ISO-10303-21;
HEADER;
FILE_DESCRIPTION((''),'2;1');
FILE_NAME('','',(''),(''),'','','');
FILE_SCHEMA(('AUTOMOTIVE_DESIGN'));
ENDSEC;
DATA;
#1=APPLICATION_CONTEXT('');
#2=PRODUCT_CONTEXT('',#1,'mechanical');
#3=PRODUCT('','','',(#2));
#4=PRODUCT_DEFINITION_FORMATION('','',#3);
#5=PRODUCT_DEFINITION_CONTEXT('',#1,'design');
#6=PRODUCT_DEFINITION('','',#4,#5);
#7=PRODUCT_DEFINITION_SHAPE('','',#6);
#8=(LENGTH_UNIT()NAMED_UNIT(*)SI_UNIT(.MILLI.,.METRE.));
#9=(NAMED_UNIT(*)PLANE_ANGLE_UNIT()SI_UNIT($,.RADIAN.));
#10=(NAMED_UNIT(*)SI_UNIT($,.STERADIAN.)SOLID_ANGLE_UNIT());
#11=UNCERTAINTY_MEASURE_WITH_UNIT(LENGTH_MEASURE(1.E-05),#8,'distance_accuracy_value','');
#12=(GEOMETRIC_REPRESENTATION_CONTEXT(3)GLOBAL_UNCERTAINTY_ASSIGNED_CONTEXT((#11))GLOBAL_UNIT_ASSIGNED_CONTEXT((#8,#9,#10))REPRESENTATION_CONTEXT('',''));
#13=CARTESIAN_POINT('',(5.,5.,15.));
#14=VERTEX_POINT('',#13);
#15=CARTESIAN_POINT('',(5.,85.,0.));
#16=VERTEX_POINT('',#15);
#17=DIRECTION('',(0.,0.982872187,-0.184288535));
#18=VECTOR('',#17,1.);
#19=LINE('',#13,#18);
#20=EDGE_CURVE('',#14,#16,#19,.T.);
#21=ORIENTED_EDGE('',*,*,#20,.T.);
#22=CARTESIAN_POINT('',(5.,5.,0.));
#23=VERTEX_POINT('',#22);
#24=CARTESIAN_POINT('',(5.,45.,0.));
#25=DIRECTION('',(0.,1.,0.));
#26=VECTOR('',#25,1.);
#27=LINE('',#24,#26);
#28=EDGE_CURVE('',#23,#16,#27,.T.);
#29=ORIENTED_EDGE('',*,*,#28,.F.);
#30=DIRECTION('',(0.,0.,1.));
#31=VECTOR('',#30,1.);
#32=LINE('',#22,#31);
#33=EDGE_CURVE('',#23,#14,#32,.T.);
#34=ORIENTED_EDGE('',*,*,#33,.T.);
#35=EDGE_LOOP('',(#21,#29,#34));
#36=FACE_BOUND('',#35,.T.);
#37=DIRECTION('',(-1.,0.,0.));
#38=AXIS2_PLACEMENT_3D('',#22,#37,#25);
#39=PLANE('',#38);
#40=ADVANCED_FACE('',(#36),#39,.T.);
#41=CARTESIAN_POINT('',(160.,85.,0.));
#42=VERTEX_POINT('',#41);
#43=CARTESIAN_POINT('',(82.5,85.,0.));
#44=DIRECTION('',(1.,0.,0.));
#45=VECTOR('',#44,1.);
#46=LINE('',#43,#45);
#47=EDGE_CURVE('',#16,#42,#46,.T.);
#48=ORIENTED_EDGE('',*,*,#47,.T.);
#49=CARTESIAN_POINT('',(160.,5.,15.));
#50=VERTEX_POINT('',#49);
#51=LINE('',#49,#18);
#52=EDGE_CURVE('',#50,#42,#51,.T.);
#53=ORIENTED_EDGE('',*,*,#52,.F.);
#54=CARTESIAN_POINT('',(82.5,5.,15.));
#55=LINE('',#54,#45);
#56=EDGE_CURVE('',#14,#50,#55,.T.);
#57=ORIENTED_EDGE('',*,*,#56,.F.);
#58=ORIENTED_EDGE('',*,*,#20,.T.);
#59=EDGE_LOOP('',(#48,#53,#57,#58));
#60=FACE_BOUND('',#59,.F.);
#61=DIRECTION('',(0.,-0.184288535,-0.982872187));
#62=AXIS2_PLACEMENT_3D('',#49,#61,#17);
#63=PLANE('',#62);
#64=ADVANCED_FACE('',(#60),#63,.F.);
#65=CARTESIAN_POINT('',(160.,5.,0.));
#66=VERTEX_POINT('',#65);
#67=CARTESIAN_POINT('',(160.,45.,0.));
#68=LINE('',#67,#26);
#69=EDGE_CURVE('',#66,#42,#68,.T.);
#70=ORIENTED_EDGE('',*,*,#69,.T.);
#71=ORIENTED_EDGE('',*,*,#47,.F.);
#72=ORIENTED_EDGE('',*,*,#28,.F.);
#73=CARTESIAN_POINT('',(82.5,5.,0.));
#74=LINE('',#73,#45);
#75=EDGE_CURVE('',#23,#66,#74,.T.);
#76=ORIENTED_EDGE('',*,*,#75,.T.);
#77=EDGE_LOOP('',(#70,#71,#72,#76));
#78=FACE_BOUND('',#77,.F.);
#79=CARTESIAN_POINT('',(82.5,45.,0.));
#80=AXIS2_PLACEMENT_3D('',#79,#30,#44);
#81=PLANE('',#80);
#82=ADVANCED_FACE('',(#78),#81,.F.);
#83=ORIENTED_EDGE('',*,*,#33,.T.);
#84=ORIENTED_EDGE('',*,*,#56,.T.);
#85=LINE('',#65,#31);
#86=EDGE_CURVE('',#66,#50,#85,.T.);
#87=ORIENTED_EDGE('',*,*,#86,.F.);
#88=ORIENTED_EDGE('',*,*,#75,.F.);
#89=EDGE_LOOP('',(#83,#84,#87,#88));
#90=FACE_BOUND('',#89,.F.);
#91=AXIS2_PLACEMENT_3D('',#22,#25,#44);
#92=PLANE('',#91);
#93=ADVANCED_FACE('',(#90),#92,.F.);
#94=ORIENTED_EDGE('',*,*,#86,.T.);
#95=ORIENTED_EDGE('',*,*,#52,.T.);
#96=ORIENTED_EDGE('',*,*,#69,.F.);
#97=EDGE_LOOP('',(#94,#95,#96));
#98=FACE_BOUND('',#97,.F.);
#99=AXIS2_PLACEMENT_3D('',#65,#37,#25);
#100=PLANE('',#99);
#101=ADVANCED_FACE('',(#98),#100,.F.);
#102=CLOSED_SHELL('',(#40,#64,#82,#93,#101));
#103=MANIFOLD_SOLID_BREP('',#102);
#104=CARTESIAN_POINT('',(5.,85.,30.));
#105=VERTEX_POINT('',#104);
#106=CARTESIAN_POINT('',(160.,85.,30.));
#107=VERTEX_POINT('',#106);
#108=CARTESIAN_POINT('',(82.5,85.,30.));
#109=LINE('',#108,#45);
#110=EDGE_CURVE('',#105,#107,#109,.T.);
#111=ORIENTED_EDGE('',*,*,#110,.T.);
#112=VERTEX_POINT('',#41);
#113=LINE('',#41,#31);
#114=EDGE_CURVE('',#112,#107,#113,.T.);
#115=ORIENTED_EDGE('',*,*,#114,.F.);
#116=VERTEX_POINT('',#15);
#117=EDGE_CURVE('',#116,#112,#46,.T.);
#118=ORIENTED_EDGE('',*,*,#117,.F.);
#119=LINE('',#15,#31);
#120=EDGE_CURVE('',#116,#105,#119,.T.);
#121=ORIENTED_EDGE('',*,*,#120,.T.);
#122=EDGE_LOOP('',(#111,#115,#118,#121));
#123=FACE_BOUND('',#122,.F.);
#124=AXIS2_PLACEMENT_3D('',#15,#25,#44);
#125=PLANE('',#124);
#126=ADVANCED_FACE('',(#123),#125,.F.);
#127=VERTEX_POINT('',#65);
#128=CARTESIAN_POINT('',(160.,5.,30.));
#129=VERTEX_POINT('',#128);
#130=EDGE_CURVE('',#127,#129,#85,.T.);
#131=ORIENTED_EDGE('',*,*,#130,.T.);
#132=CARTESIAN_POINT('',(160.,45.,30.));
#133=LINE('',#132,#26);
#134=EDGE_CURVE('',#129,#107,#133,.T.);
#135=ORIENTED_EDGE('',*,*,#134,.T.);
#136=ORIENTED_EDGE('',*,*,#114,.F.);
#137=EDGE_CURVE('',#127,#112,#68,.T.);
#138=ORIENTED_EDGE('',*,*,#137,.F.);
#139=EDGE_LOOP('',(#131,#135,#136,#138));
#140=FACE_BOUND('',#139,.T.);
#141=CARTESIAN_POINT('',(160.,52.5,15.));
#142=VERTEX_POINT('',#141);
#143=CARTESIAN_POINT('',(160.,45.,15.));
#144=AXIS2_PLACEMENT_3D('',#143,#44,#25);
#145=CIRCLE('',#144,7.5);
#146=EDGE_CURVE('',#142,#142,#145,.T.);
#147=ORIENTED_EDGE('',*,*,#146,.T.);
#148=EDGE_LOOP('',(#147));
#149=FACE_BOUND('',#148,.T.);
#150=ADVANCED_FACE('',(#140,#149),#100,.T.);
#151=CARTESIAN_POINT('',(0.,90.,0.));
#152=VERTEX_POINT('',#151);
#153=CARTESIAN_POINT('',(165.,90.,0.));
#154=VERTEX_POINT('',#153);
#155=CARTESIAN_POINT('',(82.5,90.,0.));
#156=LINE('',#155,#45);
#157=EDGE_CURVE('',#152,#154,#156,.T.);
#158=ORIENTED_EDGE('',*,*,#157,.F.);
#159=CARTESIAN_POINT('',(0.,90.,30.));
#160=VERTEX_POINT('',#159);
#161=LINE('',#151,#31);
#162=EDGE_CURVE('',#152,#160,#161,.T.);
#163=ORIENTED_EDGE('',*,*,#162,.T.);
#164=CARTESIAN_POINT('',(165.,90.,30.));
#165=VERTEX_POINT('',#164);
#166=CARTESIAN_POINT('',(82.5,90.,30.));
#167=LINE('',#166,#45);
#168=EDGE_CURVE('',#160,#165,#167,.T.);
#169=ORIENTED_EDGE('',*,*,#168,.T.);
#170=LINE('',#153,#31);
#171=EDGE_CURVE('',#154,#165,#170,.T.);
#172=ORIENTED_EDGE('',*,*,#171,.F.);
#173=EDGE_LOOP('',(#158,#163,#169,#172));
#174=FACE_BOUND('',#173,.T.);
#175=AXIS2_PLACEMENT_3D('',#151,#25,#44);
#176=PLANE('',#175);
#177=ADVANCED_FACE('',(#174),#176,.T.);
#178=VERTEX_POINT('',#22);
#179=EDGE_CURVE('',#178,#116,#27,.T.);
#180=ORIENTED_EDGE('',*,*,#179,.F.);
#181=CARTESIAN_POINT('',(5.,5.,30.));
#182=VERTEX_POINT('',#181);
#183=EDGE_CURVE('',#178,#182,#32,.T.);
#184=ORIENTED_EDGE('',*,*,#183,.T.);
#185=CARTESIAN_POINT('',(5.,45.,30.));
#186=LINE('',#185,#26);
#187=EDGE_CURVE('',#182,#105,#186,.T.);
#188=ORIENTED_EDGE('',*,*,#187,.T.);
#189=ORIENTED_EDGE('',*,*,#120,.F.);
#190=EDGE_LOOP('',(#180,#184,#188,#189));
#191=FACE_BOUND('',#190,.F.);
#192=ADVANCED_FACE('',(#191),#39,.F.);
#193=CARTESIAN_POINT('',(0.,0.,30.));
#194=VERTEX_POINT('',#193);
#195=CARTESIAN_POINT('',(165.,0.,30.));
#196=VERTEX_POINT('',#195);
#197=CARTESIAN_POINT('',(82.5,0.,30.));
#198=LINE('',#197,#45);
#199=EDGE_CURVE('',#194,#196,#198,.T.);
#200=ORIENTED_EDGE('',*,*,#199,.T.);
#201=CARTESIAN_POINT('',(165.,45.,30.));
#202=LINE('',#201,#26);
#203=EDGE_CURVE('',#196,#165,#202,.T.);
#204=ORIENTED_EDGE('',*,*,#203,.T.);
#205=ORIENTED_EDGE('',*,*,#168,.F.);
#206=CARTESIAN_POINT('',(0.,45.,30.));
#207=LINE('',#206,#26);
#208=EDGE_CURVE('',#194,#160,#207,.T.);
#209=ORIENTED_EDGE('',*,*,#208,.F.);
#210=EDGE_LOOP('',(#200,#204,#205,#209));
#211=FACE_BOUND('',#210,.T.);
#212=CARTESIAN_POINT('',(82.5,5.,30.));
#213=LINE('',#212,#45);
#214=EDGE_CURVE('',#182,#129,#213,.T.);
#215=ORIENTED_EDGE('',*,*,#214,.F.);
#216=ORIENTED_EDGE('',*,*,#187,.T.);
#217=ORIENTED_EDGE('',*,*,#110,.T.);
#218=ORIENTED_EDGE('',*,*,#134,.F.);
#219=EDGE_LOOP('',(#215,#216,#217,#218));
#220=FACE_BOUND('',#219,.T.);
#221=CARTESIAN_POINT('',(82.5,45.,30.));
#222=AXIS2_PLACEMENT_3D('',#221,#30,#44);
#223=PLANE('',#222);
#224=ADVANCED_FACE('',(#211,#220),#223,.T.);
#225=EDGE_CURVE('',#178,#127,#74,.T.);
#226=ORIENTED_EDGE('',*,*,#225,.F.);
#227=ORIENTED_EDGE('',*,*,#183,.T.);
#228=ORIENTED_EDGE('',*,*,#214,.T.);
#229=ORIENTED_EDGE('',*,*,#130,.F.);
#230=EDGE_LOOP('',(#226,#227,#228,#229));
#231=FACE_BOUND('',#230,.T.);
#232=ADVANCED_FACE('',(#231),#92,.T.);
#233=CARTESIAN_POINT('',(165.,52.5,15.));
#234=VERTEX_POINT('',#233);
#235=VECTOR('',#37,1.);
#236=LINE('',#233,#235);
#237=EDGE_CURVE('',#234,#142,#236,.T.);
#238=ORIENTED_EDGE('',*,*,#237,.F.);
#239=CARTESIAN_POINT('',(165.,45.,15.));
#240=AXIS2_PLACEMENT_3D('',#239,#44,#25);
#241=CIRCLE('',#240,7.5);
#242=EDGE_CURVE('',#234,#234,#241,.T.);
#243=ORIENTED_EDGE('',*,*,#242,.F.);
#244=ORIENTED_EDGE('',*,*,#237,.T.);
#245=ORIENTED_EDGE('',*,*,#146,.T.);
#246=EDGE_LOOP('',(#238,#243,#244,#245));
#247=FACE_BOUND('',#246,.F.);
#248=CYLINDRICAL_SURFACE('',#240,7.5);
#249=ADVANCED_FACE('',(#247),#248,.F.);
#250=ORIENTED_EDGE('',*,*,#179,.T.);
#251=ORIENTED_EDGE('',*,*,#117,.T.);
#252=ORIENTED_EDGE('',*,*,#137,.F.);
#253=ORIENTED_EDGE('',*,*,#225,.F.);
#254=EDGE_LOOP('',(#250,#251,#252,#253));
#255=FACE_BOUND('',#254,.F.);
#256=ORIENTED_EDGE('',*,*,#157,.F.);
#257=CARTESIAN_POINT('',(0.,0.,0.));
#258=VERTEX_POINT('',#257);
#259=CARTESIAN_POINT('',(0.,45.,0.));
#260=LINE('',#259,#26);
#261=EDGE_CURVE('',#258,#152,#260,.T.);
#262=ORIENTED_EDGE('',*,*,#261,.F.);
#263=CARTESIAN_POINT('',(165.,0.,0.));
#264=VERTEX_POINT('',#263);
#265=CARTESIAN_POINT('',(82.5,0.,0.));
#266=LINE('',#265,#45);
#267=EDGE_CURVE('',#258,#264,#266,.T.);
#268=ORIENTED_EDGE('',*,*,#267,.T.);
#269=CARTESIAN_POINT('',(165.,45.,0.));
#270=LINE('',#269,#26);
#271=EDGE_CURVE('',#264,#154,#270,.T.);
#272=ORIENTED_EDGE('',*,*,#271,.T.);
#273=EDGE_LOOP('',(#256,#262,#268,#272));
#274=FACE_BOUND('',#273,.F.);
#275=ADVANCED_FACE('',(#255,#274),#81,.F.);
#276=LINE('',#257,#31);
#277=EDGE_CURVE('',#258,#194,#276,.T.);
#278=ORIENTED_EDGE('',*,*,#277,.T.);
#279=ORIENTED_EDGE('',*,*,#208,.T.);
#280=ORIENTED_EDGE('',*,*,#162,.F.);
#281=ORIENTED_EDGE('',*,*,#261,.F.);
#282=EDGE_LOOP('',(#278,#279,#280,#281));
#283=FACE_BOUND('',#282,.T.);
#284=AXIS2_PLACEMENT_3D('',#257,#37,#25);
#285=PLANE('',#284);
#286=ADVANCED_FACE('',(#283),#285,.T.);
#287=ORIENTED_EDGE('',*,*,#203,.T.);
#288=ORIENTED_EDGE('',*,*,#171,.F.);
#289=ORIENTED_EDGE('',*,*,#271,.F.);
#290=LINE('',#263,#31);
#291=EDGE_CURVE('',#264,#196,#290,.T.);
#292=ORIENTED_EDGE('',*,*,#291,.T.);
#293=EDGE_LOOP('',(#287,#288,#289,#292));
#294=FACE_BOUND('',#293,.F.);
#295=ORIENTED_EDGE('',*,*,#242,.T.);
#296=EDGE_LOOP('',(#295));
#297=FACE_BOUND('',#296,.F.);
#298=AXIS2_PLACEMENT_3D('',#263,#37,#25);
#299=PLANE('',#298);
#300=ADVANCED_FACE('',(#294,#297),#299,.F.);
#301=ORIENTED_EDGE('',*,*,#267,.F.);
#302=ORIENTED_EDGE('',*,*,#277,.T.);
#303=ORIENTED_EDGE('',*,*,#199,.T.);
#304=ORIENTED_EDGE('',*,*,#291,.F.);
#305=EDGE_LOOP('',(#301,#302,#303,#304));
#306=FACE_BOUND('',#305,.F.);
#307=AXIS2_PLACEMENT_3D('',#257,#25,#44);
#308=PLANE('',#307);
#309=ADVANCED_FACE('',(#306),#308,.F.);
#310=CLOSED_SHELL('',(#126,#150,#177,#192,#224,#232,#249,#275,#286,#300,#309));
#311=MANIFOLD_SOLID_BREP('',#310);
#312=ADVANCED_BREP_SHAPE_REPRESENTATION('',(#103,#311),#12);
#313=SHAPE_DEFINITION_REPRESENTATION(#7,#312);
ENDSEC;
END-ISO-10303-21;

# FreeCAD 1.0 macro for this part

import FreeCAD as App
import Part
import Sketcher
from FreeCAD import Vector

doc = App.newDocument("Part")
body = doc.addObject("PartDesign::Body", "Body")

sketch1 = body.newObject("Sketcher::SketchObject", "Sketch")
sketch1.AttachmentSupport = (doc.getObject("XY_Plane"), [""])
sketch1.MapMode = "FlatFace"
sketch1.addGeometry(Part.LineSegment(Vector(5, 85, 0), Vector(5, 5, 0)), False)
sketch1.addGeometry(Part.LineSegment(Vector(5, 5, 0), Vector(160, 5, 0)), False)
sketch1.addGeometry(Part.LineSegment(Vector(160, 5, 0), Vector(160, 85, 0)), False)
sketch1.addGeometry(Part.LineSegment(Vector(160, 85, 0), Vector(5, 85, 0)), False)
sketch1.addConstraint(Sketcher.Constraint("Coincident", 0, 2, 1, 1))
sketch1.addConstraint(Sketcher.Constraint("Coincident", 1, 2, 2, 1))
sketch1.addConstraint(Sketcher.Constraint("Coincident", 2, 2, 3, 1))
sketch1.addConstraint(Sketcher.Constraint("Coincident", 3, 2, 0, 1))
sketch1.addConstraint(Sketcher.Constraint("Vertical", 0))
sketch1.addConstraint(Sketcher.Constraint("Horizontal", 1))
sketch1.addConstraint(Sketcher.Constraint("Vertical", 2))
sketch1.addConstraint(Sketcher.Constraint("Horizontal", 3))
sketch1.addConstraint(Sketcher.Constraint("DistanceX", 1, 1, 1, 2, 155.0))
sketch1.addConstraint(Sketcher.Constraint("DistanceY", 0, 2, 0, 1, 80.0))
sketch1.addConstraint(Sketcher.Constraint("DistanceX", -1, 1, 0, 2, 5.0))
sketch1.addConstraint(Sketcher.Constraint("DistanceY", -1, 1, 0, 2, 5.0))
pad1 = body.newObject("PartDesign::Pad", "Pad")
pad1.Profile = sketch1
pad1.Length = 15

sketch2 = body.newObject("Sketcher::SketchObject", "Sketch001")
sketch2.AttachmentSupport = (doc.getObject("YZ_Plane"), [""])
sketch2.MapMode = "FlatFace"
sketch2.AttachmentOffset = App.Placement(Vector(0, 0, 160), App.Rotation())
sketch2.addGeometry(Part.LineSegment(Vector(85, 15, 0), Vector(5, 15, 0)), False)
sketch2.addGeometry(Part.LineSegment(Vector(5, 15, 0), Vector(85, 0, 0)), False)
sketch2.addGeometry(Part.LineSegment(Vector(85, 0, 0), Vector(85, 15, 0)), False)
sketch2.addConstraint(Sketcher.Constraint("Coincident", 0, 2, 1, 1))
sketch2.addConstraint(Sketcher.Constraint("Coincident", 1, 2, 2, 1))
sketch2.addConstraint(Sketcher.Constraint("Coincident", 2, 2, 0, 1))
sketch2.addConstraint(Sketcher.Constraint("Horizontal", 0))
sketch2.addConstraint(Sketcher.Constraint("Vertical", 2))
sketch2.addConstraint(Sketcher.Constraint("PointOnObject", 1, 2, -1))
sketch2.addConstraint(Sketcher.Constraint("DistanceX", 0, 2, 0, 1, 80.0))
sketch2.addConstraint(Sketcher.Constraint("DistanceY", 2, 1, 2, 2, 15.0))
sketch2.addConstraint(Sketcher.Constraint("DistanceX", -1, 1, 0, 2, 5.0))
pocket1 = body.newObject("PartDesign::Pocket", "Pocket")
pocket1.Profile = sketch2
pocket1.Length = 155
body2 = doc.addObject("PartDesign::Body", "Body001")

sketch3 = body2.newObject("Sketcher::SketchObject", "Sketch002")
sketch3.AttachmentSupport = (doc.getObject("XY_Plane001"), [""])
sketch3.MapMode = "FlatFace"
sketch3.addGeometry(Part.LineSegment(Vector(0, 90, 0), Vector(0, 0, 0)), False)
sketch3.addGeometry(Part.LineSegment(Vector(0, 0, 0), Vector(165, 0, 0)), False)
sketch3.addGeometry(Part.LineSegment(Vector(165, 0, 0), Vector(165, 90, 0)), False)
sketch3.addGeometry(Part.LineSegment(Vector(165, 90, 0), Vector(0, 90, 0)), False)
sketch3.addGeometry(Part.LineSegment(Vector(160, 5, 0), Vector(5, 5, 0)), False)
sketch3.addGeometry(Part.LineSegment(Vector(5, 5, 0), Vector(5, 85, 0)), False)
sketch3.addGeometry(Part.LineSegment(Vector(5, 85, 0), Vector(160, 85, 0)), False)
sketch3.addGeometry(Part.LineSegment(Vector(160, 85, 0), Vector(160, 5, 0)), False)
sketch3.addConstraint(Sketcher.Constraint("Coincident", 0, 2, 1, 1))
sketch3.addConstraint(Sketcher.Constraint("Coincident", 1, 2, 2, 1))
sketch3.addConstraint(Sketcher.Constraint("Coincident", 2, 2, 3, 1))
sketch3.addConstraint(Sketcher.Constraint("Coincident", 3, 2, 0, 1))
sketch3.addConstraint(Sketcher.Constraint("Coincident", 4, 2, 5, 1))
sketch3.addConstraint(Sketcher.Constraint("Coincident", 5, 2, 6, 1))
sketch3.addConstraint(Sketcher.Constraint("Coincident", 6, 2, 7, 1))
sketch3.addConstraint(Sketcher.Constraint("Coincident", 7, 2, 4, 1))
sketch3.addConstraint(Sketcher.Constraint("Vertical", 0))
sketch3.addConstraint(Sketcher.Constraint("Horizontal", 1))
sketch3.addConstraint(Sketcher.Constraint("Vertical", 2))
sketch3.addConstraint(Sketcher.Constraint("Horizontal", 3))
sketch3.addConstraint(Sketcher.Constraint("Horizontal", 4))
sketch3.addConstraint(Sketcher.Constraint("Vertical", 5))
sketch3.addConstraint(Sketcher.Constraint("Horizontal", 6))
sketch3.addConstraint(Sketcher.Constraint("Vertical", 7))
sketch3.addConstraint(Sketcher.Constraint("Coincident", 0, 2, -1, 1))
sketch3.addConstraint(Sketcher.Constraint("DistanceX", 1, 1, 1, 2, 165.0))
sketch3.addConstraint(Sketcher.Constraint("DistanceX", 4, 2, 4, 1, 155.0))
sketch3.addConstraint(Sketcher.Constraint("DistanceY", 0, 2, 0, 1, 90.0))
sketch3.addConstraint(Sketcher.Constraint("DistanceY", 5, 1, 5, 2, 80.0))
sketch3.addConstraint(Sketcher.Constraint("DistanceX", -1, 1, 4, 2, 5.0))
sketch3.addConstraint(Sketcher.Constraint("DistanceY", -1, 1, 4, 2, 5.0))
pad2 = body2.newObject("PartDesign::Pad", "Pad001")
pad2.Profile = sketch3
pad2.Length = 30

sketch4 = body2.newObject("Sketcher::SketchObject", "Sketch003")
sketch4.AttachmentSupport = (doc.getObject("YZ_Plane001"), [""])
sketch4.MapMode = "FlatFace"
sketch4.AttachmentOffset = App.Placement(Vector(0, 0, 165), App.Rotation())
sketch4.addGeometry(Part.Circle(Vector(45, 15, 0), Vector(0, 0, 1), 8), False)
sketch4.addConstraint(Sketcher.Constraint("Diameter", 0, 15.0))
sketch4.addConstraint(Sketcher.Constraint("DistanceX", -1, 1, 0, 3, 45.0))
sketch4.addConstraint(Sketcher.Constraint("DistanceY", -1, 1, 0, 3, 15.0))
pocket2 = body2.newObject("PartDesign::Pocket", "Pocket001")
pocket2.Profile = sketch4
pocket2.Length = 5

doc.recompute()
